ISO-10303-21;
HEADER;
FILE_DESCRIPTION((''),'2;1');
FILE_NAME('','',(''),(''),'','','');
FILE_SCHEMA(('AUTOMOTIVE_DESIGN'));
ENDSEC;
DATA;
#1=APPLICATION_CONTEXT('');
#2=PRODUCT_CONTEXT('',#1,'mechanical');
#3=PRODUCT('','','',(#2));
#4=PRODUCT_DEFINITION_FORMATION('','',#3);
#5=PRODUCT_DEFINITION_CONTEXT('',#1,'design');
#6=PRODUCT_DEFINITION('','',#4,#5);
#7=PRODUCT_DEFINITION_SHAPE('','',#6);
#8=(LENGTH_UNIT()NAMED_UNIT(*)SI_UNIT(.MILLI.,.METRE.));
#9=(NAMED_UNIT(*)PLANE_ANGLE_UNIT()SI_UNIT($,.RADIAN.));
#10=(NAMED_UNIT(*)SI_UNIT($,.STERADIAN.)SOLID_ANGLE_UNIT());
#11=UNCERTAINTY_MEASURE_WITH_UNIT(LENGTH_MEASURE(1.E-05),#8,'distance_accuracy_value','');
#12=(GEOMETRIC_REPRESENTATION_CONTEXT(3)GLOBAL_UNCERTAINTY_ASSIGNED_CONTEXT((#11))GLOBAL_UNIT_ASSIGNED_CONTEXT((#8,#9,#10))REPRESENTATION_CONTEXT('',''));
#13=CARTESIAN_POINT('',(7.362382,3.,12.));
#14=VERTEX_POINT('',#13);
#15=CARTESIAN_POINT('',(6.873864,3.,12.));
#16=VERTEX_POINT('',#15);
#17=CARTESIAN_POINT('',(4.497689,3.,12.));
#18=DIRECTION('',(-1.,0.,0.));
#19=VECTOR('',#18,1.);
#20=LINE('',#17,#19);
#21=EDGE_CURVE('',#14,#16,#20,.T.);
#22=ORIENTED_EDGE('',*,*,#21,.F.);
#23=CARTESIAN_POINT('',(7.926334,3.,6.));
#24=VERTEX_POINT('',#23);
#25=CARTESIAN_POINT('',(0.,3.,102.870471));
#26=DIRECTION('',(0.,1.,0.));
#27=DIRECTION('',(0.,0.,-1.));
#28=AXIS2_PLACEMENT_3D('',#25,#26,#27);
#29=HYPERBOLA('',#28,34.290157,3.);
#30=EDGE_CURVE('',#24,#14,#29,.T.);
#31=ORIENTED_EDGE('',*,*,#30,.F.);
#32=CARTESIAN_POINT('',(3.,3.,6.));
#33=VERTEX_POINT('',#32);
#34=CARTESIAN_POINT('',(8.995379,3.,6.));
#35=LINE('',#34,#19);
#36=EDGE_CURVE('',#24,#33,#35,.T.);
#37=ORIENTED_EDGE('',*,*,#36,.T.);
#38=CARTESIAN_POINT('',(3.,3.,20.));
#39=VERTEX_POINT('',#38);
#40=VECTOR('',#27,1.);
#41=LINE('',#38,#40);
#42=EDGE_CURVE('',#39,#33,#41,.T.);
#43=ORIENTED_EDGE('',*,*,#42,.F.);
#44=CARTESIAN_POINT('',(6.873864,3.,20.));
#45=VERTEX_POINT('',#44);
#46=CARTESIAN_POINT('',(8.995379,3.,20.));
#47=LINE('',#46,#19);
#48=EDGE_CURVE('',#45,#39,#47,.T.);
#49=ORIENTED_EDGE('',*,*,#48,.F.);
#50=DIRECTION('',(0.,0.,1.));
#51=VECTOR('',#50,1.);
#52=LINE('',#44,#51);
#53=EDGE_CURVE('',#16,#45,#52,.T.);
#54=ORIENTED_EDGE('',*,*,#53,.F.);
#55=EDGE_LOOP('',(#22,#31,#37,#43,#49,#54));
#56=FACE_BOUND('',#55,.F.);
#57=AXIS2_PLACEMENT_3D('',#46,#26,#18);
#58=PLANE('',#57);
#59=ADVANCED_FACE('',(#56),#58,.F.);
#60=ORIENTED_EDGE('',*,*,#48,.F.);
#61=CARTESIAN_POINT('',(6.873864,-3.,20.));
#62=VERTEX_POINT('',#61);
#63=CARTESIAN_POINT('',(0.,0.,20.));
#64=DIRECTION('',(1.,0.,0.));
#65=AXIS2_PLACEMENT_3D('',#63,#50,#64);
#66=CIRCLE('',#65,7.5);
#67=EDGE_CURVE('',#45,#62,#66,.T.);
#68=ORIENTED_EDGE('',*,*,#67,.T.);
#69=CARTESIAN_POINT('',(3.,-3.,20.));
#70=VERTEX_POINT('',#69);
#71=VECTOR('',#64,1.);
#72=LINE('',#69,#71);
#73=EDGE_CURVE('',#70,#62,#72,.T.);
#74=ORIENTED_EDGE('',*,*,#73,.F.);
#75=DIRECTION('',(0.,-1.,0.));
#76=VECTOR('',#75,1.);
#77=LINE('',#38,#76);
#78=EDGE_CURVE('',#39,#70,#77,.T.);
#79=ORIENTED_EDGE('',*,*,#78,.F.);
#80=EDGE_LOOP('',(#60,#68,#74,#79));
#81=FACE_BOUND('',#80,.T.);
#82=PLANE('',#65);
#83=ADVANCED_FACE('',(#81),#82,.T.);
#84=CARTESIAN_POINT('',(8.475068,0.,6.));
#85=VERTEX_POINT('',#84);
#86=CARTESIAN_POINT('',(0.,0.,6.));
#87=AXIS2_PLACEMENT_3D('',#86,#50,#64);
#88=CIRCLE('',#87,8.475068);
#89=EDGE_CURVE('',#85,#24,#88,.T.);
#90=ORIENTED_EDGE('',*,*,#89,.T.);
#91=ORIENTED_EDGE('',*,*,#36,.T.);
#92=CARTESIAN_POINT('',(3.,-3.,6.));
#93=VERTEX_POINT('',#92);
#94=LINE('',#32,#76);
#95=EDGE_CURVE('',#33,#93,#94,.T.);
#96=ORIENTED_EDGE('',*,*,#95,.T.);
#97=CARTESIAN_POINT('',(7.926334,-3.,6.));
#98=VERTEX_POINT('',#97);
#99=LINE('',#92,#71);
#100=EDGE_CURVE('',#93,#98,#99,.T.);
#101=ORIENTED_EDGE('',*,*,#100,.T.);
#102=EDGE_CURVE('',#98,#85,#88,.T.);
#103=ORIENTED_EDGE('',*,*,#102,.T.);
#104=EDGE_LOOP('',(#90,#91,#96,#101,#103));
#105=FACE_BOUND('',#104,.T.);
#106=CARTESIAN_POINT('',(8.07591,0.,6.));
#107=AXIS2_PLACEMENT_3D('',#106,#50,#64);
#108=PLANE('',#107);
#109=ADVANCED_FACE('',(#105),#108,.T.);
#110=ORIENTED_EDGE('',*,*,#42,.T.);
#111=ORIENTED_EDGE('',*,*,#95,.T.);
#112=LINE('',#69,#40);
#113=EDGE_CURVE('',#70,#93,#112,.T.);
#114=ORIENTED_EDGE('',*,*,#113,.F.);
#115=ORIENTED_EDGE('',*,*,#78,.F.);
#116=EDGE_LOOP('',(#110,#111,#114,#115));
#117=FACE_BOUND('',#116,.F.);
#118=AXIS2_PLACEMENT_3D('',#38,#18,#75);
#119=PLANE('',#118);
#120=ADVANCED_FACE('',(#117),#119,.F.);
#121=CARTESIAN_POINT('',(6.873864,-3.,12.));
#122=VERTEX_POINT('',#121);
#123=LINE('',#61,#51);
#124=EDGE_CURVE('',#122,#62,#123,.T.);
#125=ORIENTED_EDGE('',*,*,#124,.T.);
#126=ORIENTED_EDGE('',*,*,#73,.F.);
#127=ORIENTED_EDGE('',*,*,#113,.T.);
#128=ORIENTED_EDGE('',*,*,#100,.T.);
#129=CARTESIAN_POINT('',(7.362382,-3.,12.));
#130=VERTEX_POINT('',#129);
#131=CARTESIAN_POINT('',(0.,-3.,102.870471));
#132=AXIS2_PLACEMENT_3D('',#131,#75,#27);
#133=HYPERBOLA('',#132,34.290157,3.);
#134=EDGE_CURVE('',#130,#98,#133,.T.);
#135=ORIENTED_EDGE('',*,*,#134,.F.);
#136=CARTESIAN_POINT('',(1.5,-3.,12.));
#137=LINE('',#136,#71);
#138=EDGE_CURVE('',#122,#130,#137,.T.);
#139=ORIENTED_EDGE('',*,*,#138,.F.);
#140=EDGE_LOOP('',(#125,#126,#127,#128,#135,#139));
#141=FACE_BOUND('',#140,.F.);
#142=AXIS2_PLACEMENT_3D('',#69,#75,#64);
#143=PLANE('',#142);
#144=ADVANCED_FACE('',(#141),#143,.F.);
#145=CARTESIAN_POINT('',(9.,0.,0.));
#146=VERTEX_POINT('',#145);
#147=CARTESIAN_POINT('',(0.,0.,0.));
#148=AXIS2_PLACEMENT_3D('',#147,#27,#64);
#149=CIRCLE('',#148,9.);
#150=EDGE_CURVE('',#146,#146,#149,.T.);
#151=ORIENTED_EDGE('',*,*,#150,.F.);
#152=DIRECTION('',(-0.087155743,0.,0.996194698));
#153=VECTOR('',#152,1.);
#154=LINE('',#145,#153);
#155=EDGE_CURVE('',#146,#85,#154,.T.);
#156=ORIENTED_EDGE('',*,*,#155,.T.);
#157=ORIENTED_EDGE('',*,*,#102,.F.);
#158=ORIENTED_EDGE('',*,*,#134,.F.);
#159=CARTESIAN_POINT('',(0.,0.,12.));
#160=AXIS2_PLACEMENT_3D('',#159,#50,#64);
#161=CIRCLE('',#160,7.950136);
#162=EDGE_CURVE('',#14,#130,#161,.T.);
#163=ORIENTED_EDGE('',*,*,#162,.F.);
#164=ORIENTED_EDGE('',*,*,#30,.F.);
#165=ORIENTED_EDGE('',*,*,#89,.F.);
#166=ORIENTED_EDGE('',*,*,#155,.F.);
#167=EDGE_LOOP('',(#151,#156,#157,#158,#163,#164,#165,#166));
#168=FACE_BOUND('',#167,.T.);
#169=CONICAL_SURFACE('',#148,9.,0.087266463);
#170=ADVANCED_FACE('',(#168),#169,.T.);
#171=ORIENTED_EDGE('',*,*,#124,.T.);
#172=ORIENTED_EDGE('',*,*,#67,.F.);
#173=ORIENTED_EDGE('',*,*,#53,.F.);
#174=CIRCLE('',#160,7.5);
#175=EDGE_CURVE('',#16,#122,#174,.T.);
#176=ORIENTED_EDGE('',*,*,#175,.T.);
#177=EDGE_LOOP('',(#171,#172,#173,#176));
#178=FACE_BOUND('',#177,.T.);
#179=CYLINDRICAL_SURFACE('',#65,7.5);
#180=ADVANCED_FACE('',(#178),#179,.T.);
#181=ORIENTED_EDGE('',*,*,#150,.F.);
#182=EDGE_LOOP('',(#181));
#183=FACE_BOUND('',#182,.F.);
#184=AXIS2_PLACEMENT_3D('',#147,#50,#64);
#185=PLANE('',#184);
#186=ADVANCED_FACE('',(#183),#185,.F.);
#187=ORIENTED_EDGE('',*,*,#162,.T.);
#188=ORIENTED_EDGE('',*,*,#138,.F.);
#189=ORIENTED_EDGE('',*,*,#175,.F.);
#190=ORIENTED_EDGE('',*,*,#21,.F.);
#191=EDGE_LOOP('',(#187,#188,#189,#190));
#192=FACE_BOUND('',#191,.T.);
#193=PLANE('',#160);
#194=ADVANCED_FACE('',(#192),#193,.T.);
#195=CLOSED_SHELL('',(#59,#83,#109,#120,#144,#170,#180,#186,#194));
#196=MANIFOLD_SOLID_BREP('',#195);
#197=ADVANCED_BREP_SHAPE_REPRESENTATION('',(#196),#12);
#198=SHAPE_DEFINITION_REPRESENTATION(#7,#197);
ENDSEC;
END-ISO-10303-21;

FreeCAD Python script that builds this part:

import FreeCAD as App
import Part
import Sketcher

V = App.Vector
Q = App.Units.Quantity


def add_polygon(sketch, points):
    """Adds a closed chain of lines whose ends are joined by coincident constraints."""
    first, n = sketch.GeometryCount, len(points)
    for a, b in zip(points, points[1:] + points[:1]):
        sketch.addGeometry(Part.LineSegment(App.Vector(*a, 0), App.Vector(*b, 0)), False)
    for i in range(n):
        sketch.addConstraint(Sketcher.Constraint("Coincident", first + i, 2, first + (i + 1) % n, 1))

doc = App.newDocument("Part")
params = doc.addObject("Spreadsheet::Sheet", "Params")
for row, (alias, value) in enumerate([
    ("sketch1_diameter", "18 mm"),
    ("pad1_length", "20 mm"),
    ("pad1_taper", "-5 deg"),
    ("sketch2_diameter", "15 mm"),
    ("pad2_length", "10 mm"),
    ("sketch3_diameter", "18 mm"),
    ("sketch3_diameter2", "15 mm"),
    ("pocket1_length", "8 mm"),
    ("sketch4_height", "6 mm"),
    ("pocket2_length", "14 mm"),
], start=1):
    params.set(f"A{row}", alias)
    params.set(f"B{row}", "=" + value)
    params.setAlias(f"B{row}", alias)

body = doc.addObject("PartDesign::Body", "Body")

# Sketch on XY plane
sketch1 = body.newObject("Sketcher::SketchObject", "Sketch")
sketch1.AttachmentSupport = (doc.getObject("XY_Plane"), [""])
sketch1.MapMode = "FlatFace"
sketch1.addGeometry(Part.Circle(V(0, 0, 0), V(0, 0, 1), 9), False)
sketch1.addConstraint([
    Sketcher.Constraint("Coincident", 0, 3, -1, 1),
    Sketcher.Constraint("Diameter", 0, Q("18 mm")),
])
sketch1.setExpression("Constraints[1]", "Params.sketch1_diameter")
pad1 = body.newObject("PartDesign::Pad", "Pad")
pad1.Profile = sketch1
pad1.setExpression("Length", "Params.pad1_length")
pad1.setExpression("TaperAngle", "Params.pad1_taper")

# Sketch on XY plane
sketch2 = body.newObject("Sketcher::SketchObject", "Sketch001")
sketch2.AttachmentSupport = (doc.getObject("XY_Plane"), [""])
sketch2.MapMode = "FlatFace"
sketch2.AttachmentOffset = App.Placement(V(0, 0, 20), App.Rotation())
sketch2.addGeometry([
    Part.Circle(V(0, 0, 0), V(0, 0, 1), 8),
    Part.Circle(V(0, 0, 0), V(0, 0, 1), 7),
], False)
sketch2.addConstraint([
    Sketcher.Constraint("Coincident", 0, 3, -1, 1),
    Sketcher.Constraint("Coincident", 1, 3, -1, 1),
    Sketcher.Constraint("Diameter", 0, Q("15 mm")),
    Sketcher.Constraint("Diameter", 1, Q("14.500453 mm")),
])
sketch2.setExpression("Constraints[2]", "Params.sketch2_diameter")
pad2 = body.newObject("PartDesign::Pad", "Pad001")
pad2.Profile = sketch2
pad2.setExpression("Length", "Params.pad2_length")
pad2.Reversed = True

# Sketch on XY plane
sketch3 = body.newObject("Sketcher::SketchObject", "Sketch002")
sketch3.AttachmentSupport = (doc.getObject("XY_Plane"), [""])
sketch3.MapMode = "FlatFace"
sketch3.AttachmentOffset = App.Placement(V(0, 0, 20), App.Rotation())
sketch3.addGeometry([
    Part.Circle(V(0, 0, 0), V(0, 0, 1), 9),
    Part.Circle(V(0, 0, 0), V(0, 0, 1), 8),
], False)
sketch3.addConstraint([
    Sketcher.Constraint("Coincident", 0, 3, -1, 1),
    Sketcher.Constraint("Coincident", 1, 3, -1, 1),
    Sketcher.Constraint("Diameter", 0, Q("18 mm")),
    Sketcher.Constraint("Diameter", 1, Q("15 mm")),
])
sketch3.setExpression("Constraints[2]", "Params.sketch3_diameter")
sketch3.setExpression("Constraints[3]", "Params.sketch3_diameter2")
pocket1 = body.newObject("PartDesign::Pocket", "Pocket")
pocket1.Profile = sketch3
pocket1.setExpression("Length", "Params.pocket1_length")

# Sketch on XY plane
sketch4 = body.newObject("Sketcher::SketchObject", "Sketch003")
sketch4.AttachmentSupport = (doc.getObject("XY_Plane"), [""])
sketch4.MapMode = "FlatFace"
sketch4.AttachmentOffset = App.Placement(V(0, 0, 20), App.Rotation())
add_polygon(sketch4, [(9, -3), (9, 3), (3, 3), (3, -3)])  # lines 0-3
sketch4.addConstraint([
    Sketcher.Constraint("Vertical", 0),
    Sketcher.Constraint("Horizontal", 1),
    Sketcher.Constraint("Vertical", 2),
    Sketcher.Constraint("Horizontal", 3),
    Sketcher.Constraint("DistanceY", 0, 1, 0, 2, Q("6 mm")),
    Sketcher.Constraint("DistanceY", -1, 1, 0, 2, Q("3 mm")),
    Sketcher.Constraint("DistanceX", -1, 1, 1, 2, Q("3 mm")),
    Sketcher.Constraint("DistanceX", 1, 2, 1, 1, Q("5.995379 mm")),
])
sketch4.setExpression("Constraints[8]", "Params.sketch4_height")
pocket2 = body.newObject("PartDesign::Pocket", "Pocket001")
pocket2.Profile = sketch4
pocket2.setExpression("Length", "Params.pocket2_length")

doc.recompute()
